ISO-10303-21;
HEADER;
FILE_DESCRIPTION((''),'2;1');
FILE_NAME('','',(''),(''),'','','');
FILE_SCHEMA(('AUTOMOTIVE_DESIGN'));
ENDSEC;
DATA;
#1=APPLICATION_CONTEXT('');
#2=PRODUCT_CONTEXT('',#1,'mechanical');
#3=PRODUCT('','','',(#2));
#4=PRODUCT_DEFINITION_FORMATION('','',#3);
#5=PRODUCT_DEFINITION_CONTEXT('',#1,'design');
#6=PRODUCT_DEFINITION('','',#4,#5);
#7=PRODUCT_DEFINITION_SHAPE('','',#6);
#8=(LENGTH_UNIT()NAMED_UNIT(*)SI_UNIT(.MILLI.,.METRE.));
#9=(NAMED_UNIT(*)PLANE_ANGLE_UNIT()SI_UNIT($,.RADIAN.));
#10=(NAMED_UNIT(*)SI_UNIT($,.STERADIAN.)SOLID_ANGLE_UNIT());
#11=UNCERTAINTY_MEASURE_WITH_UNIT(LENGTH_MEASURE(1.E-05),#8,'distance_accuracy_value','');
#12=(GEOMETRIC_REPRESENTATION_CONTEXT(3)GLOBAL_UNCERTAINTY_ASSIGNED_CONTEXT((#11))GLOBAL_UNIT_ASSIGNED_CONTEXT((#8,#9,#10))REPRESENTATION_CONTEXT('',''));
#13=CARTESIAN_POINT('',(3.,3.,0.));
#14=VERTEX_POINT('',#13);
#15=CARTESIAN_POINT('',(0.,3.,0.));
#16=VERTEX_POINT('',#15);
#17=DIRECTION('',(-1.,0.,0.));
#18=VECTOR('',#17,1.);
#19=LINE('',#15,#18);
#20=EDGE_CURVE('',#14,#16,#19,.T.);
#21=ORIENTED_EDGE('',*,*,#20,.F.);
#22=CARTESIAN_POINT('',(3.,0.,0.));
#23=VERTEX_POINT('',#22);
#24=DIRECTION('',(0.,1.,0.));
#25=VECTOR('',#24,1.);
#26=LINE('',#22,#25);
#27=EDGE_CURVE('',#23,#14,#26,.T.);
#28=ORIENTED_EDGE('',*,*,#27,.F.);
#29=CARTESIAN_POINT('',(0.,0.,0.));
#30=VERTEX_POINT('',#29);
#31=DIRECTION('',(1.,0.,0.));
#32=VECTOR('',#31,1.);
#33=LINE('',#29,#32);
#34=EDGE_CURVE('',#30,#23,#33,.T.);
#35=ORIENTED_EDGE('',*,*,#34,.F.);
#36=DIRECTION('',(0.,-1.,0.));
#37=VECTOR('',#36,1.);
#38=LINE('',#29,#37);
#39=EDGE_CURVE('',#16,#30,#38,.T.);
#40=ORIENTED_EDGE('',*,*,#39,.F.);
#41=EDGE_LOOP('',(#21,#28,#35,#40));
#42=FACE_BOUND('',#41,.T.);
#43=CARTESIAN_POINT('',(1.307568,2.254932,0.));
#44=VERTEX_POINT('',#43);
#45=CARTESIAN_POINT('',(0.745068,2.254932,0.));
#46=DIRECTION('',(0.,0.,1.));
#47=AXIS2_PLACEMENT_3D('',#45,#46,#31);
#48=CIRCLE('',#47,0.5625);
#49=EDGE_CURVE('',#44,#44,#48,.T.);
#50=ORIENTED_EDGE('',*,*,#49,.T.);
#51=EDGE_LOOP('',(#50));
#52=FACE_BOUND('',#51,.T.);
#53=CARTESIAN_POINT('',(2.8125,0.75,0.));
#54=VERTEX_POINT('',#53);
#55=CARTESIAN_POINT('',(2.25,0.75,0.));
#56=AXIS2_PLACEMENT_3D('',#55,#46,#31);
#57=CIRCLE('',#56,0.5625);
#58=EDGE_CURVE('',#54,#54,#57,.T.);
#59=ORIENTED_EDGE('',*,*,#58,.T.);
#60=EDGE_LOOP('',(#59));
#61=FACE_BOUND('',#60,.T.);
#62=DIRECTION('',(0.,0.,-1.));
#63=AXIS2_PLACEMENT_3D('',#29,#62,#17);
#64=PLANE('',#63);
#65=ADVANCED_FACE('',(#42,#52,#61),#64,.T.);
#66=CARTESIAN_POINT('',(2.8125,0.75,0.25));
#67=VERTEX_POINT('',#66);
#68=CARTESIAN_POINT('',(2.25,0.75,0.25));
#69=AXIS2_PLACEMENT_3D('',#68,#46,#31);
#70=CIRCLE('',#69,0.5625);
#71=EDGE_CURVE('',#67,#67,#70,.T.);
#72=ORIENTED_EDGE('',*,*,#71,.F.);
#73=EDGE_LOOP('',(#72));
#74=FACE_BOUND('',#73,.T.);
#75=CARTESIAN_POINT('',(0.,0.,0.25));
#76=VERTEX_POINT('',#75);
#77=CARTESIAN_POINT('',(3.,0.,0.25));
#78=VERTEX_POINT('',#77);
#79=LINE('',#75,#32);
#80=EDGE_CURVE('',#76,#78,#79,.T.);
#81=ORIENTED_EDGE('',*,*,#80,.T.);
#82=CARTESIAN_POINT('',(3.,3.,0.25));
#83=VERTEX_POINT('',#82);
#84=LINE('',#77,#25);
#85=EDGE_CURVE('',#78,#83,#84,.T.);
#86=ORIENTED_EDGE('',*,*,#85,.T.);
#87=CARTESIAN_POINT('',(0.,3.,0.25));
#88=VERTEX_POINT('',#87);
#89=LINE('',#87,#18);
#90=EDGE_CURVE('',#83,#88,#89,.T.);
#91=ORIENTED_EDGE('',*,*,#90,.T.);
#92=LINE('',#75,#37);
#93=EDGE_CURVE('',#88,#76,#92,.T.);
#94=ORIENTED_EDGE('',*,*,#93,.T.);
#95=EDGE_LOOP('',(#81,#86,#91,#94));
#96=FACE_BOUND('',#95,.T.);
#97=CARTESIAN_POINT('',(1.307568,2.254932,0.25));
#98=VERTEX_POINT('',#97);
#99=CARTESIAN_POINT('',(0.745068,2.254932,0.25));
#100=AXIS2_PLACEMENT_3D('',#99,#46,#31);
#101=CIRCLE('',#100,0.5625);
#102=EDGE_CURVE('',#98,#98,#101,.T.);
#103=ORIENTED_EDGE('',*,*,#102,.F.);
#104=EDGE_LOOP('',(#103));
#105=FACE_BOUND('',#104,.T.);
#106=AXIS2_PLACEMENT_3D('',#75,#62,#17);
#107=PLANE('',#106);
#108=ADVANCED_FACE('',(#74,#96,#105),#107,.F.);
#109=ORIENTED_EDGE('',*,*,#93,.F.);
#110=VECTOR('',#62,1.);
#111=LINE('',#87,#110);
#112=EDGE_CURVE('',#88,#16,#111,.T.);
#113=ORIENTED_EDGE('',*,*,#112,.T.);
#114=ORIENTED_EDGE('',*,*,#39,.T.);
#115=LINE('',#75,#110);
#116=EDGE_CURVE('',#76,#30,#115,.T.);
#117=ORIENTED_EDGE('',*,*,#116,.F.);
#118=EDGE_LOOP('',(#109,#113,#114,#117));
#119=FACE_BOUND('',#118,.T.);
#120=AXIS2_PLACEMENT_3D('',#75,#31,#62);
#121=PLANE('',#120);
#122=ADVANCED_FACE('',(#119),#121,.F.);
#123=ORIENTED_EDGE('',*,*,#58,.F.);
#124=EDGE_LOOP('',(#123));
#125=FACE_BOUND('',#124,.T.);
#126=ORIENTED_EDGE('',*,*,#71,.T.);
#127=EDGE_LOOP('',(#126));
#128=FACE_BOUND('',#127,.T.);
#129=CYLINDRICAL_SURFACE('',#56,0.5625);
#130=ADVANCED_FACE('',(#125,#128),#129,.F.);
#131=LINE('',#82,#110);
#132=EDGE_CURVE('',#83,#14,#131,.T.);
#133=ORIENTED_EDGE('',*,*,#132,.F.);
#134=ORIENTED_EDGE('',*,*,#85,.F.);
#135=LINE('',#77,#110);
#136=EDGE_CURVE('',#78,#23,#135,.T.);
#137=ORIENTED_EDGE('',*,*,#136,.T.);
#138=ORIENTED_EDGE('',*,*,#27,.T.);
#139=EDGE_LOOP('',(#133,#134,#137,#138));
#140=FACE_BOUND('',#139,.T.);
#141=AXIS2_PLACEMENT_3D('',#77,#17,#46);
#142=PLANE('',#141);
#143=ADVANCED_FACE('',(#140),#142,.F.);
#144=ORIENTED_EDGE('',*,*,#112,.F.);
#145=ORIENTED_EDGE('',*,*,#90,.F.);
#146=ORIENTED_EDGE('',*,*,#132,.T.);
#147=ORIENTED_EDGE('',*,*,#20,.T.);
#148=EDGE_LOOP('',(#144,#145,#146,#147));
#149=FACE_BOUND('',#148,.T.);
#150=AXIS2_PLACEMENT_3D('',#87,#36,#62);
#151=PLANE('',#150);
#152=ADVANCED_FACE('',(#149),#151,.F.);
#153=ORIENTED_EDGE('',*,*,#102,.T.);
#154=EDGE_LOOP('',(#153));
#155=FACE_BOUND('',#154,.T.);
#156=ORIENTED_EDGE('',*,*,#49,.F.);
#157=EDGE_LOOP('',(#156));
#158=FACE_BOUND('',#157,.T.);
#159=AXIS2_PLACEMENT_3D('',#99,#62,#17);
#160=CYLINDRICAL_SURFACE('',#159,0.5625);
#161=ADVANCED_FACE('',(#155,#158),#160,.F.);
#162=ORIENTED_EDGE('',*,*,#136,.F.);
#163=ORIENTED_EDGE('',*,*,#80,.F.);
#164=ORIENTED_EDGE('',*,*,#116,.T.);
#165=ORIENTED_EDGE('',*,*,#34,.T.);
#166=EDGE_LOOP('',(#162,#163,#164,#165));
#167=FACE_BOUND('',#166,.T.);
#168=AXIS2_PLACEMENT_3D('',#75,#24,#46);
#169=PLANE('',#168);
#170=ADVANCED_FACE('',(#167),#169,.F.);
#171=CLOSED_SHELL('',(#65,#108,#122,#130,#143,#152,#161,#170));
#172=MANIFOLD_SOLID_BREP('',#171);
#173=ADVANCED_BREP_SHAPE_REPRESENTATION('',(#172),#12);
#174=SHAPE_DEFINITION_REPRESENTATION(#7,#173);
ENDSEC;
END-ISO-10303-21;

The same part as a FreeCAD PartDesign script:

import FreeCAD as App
import Part
import Sketcher
from FreeCAD import Vector
Q = App.Units.Quantity


def add_polygon(sketch, points):
    """Adds a closed chain of lines whose ends are joined by coincident constraints."""
    first, n = sketch.GeometryCount, len(points)
    for a, b in zip(points, points[1:] + points[:1]):
        sketch.addGeometry(Part.LineSegment(App.Vector(*a, 0), App.Vector(*b, 0)), False)
    for i in range(n):
        sketch.addConstraint(Sketcher.Constraint("Coincident", first + i, 2, first + (i + 1) % n, 1))

doc = App.newDocument("Part")
params = doc.addObject("Spreadsheet::Sheet", "Params")
for row, (alias, value) in enumerate([
    ("sketch1_width", "3 mm"),
    ("pad1_length", "0.25 mm"),
], start=1):
    params.set(f"A{row}", alias)
    params.set(f"B{row}", "=" + value)
    params.setAlias(f"B{row}", alias)

body = doc.addObject("PartDesign::Body", "Body")

sketch1 = body.newObject("Sketcher::SketchObject", "Sketch")
sketch1.AttachmentSupport = (doc.getObject("XY_Plane"), [""])
sketch1.MapMode = "FlatFace"
add_polygon(sketch1, [(0, 3), (0, 0), (3, 0), (3, 3)])
sketch1.addGeometry(Part.Circle(Vector(0.745068, 2.254932, 0), Vector(0, 0, 1), 0.5625), False)
sketch1.addConstraint([
    Sketcher.Constraint("Vertical", 0),
    Sketcher.Constraint("Horizontal", 1),
    Sketcher.Constraint("Vertical", 2),
    Sketcher.Constraint("Horizontal", 3),
    Sketcher.Constraint("Coincident", 0, 2, -1, 1),
    Sketcher.Constraint("Equal", 3, 0),
    Sketcher.Constraint("DistanceX", 1, 1, 1, 2, Q("3 mm")),
    Sketcher.Constraint("Diameter", 4, Q("1.125 mm")),
    Sketcher.Constraint("DistanceX", -1, 1, 4, 3, Q("0.745068 mm")),
    Sketcher.Constraint("DistanceY", -1, 1, 4, 3, Q("2.254932 mm")),
])
sketch1.setExpression("Constraints[10]", "Params.sketch1_width")
pad1 = body.newObject("PartDesign::Pad", "Pad")
pad1.Profile = sketch1
pad1.setExpression("Length", "Params.pad1_length")

sketch2 = body.newObject("Sketcher::SketchObject", "Sketch001")
sketch2.AttachmentSupport = (doc.getObject("XY_Plane"), [""])
sketch2.MapMode = "FlatFace"
sketch2.AttachmentOffset = App.Placement(Vector(0, 0, 0.25), App.Rotation())
sketch2.addGeometry(Part.Circle(Vector(2.25, 0.75, 0), Vector(0, 0, 1), 0.5625), False)
sketch2.addConstraint([
    Sketcher.Constraint("Diameter", 0, Q("1.125 mm")),
    Sketcher.Constraint("DistanceX", -1, 1, 0, 3, Q("2.25 mm")),
    Sketcher.Constraint("DistanceY", -1, 1, 0, 3, Q("0.75 mm")),
])
pocket1 = body.newObject("PartDesign::Pocket", "Pocket")
pocket1.Profile = sketch2
pocket1.Type = "ThroughAll"

doc.recompute()
